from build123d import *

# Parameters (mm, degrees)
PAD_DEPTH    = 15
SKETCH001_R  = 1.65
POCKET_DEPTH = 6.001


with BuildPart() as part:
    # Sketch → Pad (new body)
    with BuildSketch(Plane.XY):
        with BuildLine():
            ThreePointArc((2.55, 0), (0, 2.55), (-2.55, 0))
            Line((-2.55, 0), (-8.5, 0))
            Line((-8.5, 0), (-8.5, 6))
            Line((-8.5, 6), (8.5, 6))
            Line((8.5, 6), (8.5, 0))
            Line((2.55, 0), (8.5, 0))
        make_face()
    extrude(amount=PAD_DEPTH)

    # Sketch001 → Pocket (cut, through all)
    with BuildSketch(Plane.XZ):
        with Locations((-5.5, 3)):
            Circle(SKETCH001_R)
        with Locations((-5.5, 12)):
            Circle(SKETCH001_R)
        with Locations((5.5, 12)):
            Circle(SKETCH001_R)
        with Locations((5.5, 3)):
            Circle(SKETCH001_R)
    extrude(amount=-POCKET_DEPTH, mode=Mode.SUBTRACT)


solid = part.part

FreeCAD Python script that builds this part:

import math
import FreeCAD as App
import Part
import Sketcher
Q = App.Units.Quantity

doc = App.newDocument("Part")
params = doc.addObject("Spreadsheet::Sheet", "Params")
for row, (alias, value) in enumerate([
    ("sketch1_width", "17 mm"),
    ("sketch1_height", "6 mm"),
    ("sketch1_radius", "2.55 mm"),
    ("pad1_length", "15 mm"),
    ("sketch2_diameter", "3.3 mm"),
], start=1):
    params.set(f"A{row}", alias)
    params.set(f"B{row}", "=" + value)
    params.setAlias(f"B{row}", alias)

body = doc.addObject("PartDesign::Body", "Body")

# Sketch on XY plane
sketch1 = body.newObject("Sketcher::SketchObject", "Sketch")
sketch1.AttachmentSupport = (doc.getObject("XY_Plane"), [""])
sketch1.MapMode = "FlatFace"
sketch1.addGeometry(Part.ArcOfCircle(Part.Circle(App.Vector(0, 0, 0), App.Vector(0, 0, 1), 2.55), math.radians(0), math.radians(180)), False)
sketch1.addGeometry(Part.LineSegment(App.Vector(2.55, 0, 0), App.Vector(8.5, 0, 0)), False)
sketch1.addGeometry(Part.LineSegment(App.Vector(8.5, 0, 0), App.Vector(8.5, 6, 0)), False)
sketch1.addGeometry(Part.LineSegment(App.Vector(8.5, 6, 0), App.Vector(-8.5, 6, 0)), False)
sketch1.addGeometry(Part.LineSegment(App.Vector(-8.5, 6, 0), App.Vector(-8.5, 0, 0)), False)
sketch1.addGeometry(Part.LineSegment(App.Vector(-8.5, 0, 0), App.Vector(-2.55, 0, 0)), False)
sketch1.addConstraint(Sketcher.Constraint("Coincident", 0, 1, 1, 1))
sketch1.addConstraint(Sketcher.Constraint("Coincident", 1, 2, 2, 1))
sketch1.addConstraint(Sketcher.Constraint("Coincident", 2, 2, 3, 1))
sketch1.addConstraint(Sketcher.Constraint("Coincident", 3, 2, 4, 1))
sketch1.addConstraint(Sketcher.Constraint("Coincident", 4, 2, 5, 1))
sketch1.addConstraint(Sketcher.Constraint("Coincident", 5, 2, 0, 2))
sketch1.addConstraint(Sketcher.Constraint("Horizontal", 1))
sketch1.addConstraint(Sketcher.Constraint("Vertical", 2))
sketch1.addConstraint(Sketcher.Constraint("Horizontal", 3))
sketch1.addConstraint(Sketcher.Constraint("Vertical", 4))
sketch1.addConstraint(Sketcher.Constraint("Horizontal", 5))
sketch1.addConstraint(Sketcher.Constraint("Coincident", 0, 3, -1, 1))
sketch1.addConstraint(Sketcher.Constraint("Symmetric", 1, 2, 4, 2, -1, 1))
sketch1.addConstraint(Sketcher.Constraint("PointOnObject", 0, 1, -1))
sketch1.addConstraint(Sketcher.Constraint("DistanceX", 3, 2, 3, 1, Q("17 mm")))
sketch1.addConstraint(Sketcher.Constraint("DistanceY", 2, 1, 2, 2, Q("6 mm")))
sketch1.addConstraint(Sketcher.Constraint("Radius", 0, Q("2.55 mm")))
sketch1.setExpression("Constraints[14]", "Params.sketch1_width")
sketch1.setExpression("Constraints[15]", "Params.sketch1_height")
sketch1.setExpression("Constraints[16]", "Params.sketch1_radius")
pad1 = body.newObject("PartDesign::Pad", "Pad")
pad1.Profile = sketch1
pad1.setExpression("Length", "Params.pad1_length")

# Sketch on XZ plane
sketch2 = body.newObject("Sketcher::SketchObject", "Sketch001")
sketch2.AttachmentSupport = (doc.getObject("XZ_Plane"), [""])
sketch2.MapMode = "FlatFace"
sketch2.addGeometry(Part.Circle(App.Vector(-5.5, 3, 0), App.Vector(0, 0, 1), 1.65), False)
sketch2.addGeometry(Part.Circle(App.Vector(-5.5, 12, 0), App.Vector(0, 0, 1), 1.65), False)
sketch2.addGeometry(Part.Circle(App.Vector(5.5, 12, 0), App.Vector(0, 0, 1), 1.65), False)
sketch2.addGeometry(Part.Circle(App.Vector(5.5, 3, 0), App.Vector(0, 0, 1), 1.65), False)
sketch2.addConstraint(Sketcher.Constraint("Equal", 0, 1))
sketch2.addConstraint(Sketcher.Constraint("Equal", 1, 2))
sketch2.addConstraint(Sketcher.Constraint("Equal", 2, 3))
sketch2.addConstraint(Sketcher.Constraint("Symmetric", 1, 3, 2, 3, -2))
sketch2.addConstraint(Sketcher.Constraint("Symmetric", 0, 3, 3, 3, -2))
sketch2.addConstraint(Sketcher.Constraint("Vertical", 0, 3, 1, 3))
sketch2.addConstraint(Sketcher.Constraint("Diameter", 0, Q("3.3 mm")))
sketch2.addConstraint(Sketcher.Constraint("DistanceY", -1, 1, 0, 3, Q("3 mm")))
sketch2.addConstraint(Sketcher.Constraint("DistanceY", -1, 1, 1, 3, Q("12 mm")))
sketch2.addConstraint(Sketcher.Constraint("DistanceX", 1, 3, 2, 3, Q("11 mm")))
sketch2.setExpression("Constraints[6]", "Params.sketch2_diameter")
pocket1 = body.newObject("PartDesign::Pocket", "Pocket")
pocket1.Profile = sketch2
pocket1.Type = "ThroughAll"

doc.recompute()
